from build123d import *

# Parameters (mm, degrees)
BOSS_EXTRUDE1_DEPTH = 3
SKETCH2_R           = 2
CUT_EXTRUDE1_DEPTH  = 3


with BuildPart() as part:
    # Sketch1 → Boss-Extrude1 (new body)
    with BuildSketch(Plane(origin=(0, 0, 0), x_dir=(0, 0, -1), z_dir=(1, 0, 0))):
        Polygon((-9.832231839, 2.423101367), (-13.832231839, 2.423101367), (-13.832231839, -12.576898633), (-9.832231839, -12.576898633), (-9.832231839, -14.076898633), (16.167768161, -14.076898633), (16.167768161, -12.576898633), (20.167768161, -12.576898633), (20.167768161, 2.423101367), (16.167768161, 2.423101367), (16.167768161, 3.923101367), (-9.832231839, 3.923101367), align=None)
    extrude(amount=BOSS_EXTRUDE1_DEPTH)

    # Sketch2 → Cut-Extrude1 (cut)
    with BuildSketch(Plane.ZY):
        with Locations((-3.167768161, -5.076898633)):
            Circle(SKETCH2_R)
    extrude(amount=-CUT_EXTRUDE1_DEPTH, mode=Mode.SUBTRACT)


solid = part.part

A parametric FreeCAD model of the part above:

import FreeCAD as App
import Part
import Sketcher

V = App.Vector


def add_polygon(sketch, points):
    """Adds a closed chain of lines whose ends are joined by coincident constraints."""
    first, n = sketch.GeometryCount, len(points)
    for a, b in zip(points, points[1:] + points[:1]):
        sketch.addGeometry(Part.LineSegment(App.Vector(*a, 0), App.Vector(*b, 0)), False)
    for i in range(n):
        sketch.addConstraint(Sketcher.Constraint("Coincident", first + i, 2, first + (i + 1) % n, 1))

doc = App.newDocument("Part")
body = doc.addObject("PartDesign::Body", "Body")

# Sketch on YZ plane
sketch1 = body.newObject("Sketcher::SketchObject", "Sketch")
sketch1.AttachmentSupport = (doc.getObject("YZ_Plane"), [""])
sketch1.MapMode = "FlatFace"
add_polygon(sketch1, [(2.423101, 9.832232), (2.423101, 13.832232), (-12.576899, 13.832232), (-12.576899, 9.832232), (-14.076899, 9.832232), (-14.076899, -16.167768), (-12.576899, -16.167768), (-12.576899, -20.167768), (2.423101, -20.167768), (2.423101, -16.167768), (3.923101, -16.167768), (3.923101, 9.832232)])  # lines 0-11
sketch1.addConstraint([
    Sketcher.Constraint("Vertical", 0),
    Sketcher.Constraint("Horizontal", 1),
    Sketcher.Constraint("Vertical", 2),
    Sketcher.Constraint("Horizontal", 3),
    Sketcher.Constraint("Vertical", 4),
    Sketcher.Constraint("Horizontal", 5),
    Sketcher.Constraint("Vertical", 6),
    Sketcher.Constraint("Horizontal", 7),
    Sketcher.Constraint("Vertical", 8),
    Sketcher.Constraint("Horizontal", 9),
    Sketcher.Constraint("Vertical", 10),
    Sketcher.Constraint("Horizontal", 11),
    Sketcher.Constraint("Horizontal", 5, 2, 8, 2),
    Sketcher.Constraint("Horizontal", 3, 2, 10, 2),
    Sketcher.Constraint("Vertical", 2, 2, 5, 2),
    Sketcher.Constraint("Vertical", 0, 2, 7, 2),
    Sketcher.Constraint("Equal", 5, 9),
    Sketcher.Constraint("Equal", 2, 6),
    Sketcher.Constraint("DistanceX", 1, 2, 1, 1, 15.0),
    Sketcher.Constraint("DistanceY", 0, 1, 0, 2, 4.0),
    Sketcher.Constraint("DistanceY", 4, 2, 4, 1, 26.0),
    Sketcher.Constraint("DistanceX", 3, 2, 3, 1, 1.5),
    Sketcher.Constraint("DistanceX", -1, 1, 0, 2, 2.423101),
    Sketcher.Constraint("DistanceY", -1, 1, 0, 2, 13.832232),
])
pad1 = body.newObject("PartDesign::Pad", "Pad")
pad1.Profile = sketch1
pad1.Length = 3

# Sketch on YZ plane
sketch2 = body.newObject("Sketcher::SketchObject", "Sketch001")
sketch2.AttachmentSupport = (doc.getObject("YZ_Plane"), [""])
sketch2.MapMode = "FlatFace"
sketch2.addGeometry(Part.Circle(V(-5.076899, -3.167768, 0), V(0, 0, 1), 2), False)
sketch2.addConstraint([
    Sketcher.Constraint("Diameter", 0, 4.0),
    Sketcher.Constraint("DistanceX", 0, 3, -1, 1, 5.076899),
    Sketcher.Constraint("DistanceY", 0, 3, -1, 1, 3.167768),
])
pocket1 = body.newObject("PartDesign::Pocket", "Pocket")
pocket1.Profile = sketch2
pocket1.Length = 3
pocket1.Reversed = True

doc.recompute()
